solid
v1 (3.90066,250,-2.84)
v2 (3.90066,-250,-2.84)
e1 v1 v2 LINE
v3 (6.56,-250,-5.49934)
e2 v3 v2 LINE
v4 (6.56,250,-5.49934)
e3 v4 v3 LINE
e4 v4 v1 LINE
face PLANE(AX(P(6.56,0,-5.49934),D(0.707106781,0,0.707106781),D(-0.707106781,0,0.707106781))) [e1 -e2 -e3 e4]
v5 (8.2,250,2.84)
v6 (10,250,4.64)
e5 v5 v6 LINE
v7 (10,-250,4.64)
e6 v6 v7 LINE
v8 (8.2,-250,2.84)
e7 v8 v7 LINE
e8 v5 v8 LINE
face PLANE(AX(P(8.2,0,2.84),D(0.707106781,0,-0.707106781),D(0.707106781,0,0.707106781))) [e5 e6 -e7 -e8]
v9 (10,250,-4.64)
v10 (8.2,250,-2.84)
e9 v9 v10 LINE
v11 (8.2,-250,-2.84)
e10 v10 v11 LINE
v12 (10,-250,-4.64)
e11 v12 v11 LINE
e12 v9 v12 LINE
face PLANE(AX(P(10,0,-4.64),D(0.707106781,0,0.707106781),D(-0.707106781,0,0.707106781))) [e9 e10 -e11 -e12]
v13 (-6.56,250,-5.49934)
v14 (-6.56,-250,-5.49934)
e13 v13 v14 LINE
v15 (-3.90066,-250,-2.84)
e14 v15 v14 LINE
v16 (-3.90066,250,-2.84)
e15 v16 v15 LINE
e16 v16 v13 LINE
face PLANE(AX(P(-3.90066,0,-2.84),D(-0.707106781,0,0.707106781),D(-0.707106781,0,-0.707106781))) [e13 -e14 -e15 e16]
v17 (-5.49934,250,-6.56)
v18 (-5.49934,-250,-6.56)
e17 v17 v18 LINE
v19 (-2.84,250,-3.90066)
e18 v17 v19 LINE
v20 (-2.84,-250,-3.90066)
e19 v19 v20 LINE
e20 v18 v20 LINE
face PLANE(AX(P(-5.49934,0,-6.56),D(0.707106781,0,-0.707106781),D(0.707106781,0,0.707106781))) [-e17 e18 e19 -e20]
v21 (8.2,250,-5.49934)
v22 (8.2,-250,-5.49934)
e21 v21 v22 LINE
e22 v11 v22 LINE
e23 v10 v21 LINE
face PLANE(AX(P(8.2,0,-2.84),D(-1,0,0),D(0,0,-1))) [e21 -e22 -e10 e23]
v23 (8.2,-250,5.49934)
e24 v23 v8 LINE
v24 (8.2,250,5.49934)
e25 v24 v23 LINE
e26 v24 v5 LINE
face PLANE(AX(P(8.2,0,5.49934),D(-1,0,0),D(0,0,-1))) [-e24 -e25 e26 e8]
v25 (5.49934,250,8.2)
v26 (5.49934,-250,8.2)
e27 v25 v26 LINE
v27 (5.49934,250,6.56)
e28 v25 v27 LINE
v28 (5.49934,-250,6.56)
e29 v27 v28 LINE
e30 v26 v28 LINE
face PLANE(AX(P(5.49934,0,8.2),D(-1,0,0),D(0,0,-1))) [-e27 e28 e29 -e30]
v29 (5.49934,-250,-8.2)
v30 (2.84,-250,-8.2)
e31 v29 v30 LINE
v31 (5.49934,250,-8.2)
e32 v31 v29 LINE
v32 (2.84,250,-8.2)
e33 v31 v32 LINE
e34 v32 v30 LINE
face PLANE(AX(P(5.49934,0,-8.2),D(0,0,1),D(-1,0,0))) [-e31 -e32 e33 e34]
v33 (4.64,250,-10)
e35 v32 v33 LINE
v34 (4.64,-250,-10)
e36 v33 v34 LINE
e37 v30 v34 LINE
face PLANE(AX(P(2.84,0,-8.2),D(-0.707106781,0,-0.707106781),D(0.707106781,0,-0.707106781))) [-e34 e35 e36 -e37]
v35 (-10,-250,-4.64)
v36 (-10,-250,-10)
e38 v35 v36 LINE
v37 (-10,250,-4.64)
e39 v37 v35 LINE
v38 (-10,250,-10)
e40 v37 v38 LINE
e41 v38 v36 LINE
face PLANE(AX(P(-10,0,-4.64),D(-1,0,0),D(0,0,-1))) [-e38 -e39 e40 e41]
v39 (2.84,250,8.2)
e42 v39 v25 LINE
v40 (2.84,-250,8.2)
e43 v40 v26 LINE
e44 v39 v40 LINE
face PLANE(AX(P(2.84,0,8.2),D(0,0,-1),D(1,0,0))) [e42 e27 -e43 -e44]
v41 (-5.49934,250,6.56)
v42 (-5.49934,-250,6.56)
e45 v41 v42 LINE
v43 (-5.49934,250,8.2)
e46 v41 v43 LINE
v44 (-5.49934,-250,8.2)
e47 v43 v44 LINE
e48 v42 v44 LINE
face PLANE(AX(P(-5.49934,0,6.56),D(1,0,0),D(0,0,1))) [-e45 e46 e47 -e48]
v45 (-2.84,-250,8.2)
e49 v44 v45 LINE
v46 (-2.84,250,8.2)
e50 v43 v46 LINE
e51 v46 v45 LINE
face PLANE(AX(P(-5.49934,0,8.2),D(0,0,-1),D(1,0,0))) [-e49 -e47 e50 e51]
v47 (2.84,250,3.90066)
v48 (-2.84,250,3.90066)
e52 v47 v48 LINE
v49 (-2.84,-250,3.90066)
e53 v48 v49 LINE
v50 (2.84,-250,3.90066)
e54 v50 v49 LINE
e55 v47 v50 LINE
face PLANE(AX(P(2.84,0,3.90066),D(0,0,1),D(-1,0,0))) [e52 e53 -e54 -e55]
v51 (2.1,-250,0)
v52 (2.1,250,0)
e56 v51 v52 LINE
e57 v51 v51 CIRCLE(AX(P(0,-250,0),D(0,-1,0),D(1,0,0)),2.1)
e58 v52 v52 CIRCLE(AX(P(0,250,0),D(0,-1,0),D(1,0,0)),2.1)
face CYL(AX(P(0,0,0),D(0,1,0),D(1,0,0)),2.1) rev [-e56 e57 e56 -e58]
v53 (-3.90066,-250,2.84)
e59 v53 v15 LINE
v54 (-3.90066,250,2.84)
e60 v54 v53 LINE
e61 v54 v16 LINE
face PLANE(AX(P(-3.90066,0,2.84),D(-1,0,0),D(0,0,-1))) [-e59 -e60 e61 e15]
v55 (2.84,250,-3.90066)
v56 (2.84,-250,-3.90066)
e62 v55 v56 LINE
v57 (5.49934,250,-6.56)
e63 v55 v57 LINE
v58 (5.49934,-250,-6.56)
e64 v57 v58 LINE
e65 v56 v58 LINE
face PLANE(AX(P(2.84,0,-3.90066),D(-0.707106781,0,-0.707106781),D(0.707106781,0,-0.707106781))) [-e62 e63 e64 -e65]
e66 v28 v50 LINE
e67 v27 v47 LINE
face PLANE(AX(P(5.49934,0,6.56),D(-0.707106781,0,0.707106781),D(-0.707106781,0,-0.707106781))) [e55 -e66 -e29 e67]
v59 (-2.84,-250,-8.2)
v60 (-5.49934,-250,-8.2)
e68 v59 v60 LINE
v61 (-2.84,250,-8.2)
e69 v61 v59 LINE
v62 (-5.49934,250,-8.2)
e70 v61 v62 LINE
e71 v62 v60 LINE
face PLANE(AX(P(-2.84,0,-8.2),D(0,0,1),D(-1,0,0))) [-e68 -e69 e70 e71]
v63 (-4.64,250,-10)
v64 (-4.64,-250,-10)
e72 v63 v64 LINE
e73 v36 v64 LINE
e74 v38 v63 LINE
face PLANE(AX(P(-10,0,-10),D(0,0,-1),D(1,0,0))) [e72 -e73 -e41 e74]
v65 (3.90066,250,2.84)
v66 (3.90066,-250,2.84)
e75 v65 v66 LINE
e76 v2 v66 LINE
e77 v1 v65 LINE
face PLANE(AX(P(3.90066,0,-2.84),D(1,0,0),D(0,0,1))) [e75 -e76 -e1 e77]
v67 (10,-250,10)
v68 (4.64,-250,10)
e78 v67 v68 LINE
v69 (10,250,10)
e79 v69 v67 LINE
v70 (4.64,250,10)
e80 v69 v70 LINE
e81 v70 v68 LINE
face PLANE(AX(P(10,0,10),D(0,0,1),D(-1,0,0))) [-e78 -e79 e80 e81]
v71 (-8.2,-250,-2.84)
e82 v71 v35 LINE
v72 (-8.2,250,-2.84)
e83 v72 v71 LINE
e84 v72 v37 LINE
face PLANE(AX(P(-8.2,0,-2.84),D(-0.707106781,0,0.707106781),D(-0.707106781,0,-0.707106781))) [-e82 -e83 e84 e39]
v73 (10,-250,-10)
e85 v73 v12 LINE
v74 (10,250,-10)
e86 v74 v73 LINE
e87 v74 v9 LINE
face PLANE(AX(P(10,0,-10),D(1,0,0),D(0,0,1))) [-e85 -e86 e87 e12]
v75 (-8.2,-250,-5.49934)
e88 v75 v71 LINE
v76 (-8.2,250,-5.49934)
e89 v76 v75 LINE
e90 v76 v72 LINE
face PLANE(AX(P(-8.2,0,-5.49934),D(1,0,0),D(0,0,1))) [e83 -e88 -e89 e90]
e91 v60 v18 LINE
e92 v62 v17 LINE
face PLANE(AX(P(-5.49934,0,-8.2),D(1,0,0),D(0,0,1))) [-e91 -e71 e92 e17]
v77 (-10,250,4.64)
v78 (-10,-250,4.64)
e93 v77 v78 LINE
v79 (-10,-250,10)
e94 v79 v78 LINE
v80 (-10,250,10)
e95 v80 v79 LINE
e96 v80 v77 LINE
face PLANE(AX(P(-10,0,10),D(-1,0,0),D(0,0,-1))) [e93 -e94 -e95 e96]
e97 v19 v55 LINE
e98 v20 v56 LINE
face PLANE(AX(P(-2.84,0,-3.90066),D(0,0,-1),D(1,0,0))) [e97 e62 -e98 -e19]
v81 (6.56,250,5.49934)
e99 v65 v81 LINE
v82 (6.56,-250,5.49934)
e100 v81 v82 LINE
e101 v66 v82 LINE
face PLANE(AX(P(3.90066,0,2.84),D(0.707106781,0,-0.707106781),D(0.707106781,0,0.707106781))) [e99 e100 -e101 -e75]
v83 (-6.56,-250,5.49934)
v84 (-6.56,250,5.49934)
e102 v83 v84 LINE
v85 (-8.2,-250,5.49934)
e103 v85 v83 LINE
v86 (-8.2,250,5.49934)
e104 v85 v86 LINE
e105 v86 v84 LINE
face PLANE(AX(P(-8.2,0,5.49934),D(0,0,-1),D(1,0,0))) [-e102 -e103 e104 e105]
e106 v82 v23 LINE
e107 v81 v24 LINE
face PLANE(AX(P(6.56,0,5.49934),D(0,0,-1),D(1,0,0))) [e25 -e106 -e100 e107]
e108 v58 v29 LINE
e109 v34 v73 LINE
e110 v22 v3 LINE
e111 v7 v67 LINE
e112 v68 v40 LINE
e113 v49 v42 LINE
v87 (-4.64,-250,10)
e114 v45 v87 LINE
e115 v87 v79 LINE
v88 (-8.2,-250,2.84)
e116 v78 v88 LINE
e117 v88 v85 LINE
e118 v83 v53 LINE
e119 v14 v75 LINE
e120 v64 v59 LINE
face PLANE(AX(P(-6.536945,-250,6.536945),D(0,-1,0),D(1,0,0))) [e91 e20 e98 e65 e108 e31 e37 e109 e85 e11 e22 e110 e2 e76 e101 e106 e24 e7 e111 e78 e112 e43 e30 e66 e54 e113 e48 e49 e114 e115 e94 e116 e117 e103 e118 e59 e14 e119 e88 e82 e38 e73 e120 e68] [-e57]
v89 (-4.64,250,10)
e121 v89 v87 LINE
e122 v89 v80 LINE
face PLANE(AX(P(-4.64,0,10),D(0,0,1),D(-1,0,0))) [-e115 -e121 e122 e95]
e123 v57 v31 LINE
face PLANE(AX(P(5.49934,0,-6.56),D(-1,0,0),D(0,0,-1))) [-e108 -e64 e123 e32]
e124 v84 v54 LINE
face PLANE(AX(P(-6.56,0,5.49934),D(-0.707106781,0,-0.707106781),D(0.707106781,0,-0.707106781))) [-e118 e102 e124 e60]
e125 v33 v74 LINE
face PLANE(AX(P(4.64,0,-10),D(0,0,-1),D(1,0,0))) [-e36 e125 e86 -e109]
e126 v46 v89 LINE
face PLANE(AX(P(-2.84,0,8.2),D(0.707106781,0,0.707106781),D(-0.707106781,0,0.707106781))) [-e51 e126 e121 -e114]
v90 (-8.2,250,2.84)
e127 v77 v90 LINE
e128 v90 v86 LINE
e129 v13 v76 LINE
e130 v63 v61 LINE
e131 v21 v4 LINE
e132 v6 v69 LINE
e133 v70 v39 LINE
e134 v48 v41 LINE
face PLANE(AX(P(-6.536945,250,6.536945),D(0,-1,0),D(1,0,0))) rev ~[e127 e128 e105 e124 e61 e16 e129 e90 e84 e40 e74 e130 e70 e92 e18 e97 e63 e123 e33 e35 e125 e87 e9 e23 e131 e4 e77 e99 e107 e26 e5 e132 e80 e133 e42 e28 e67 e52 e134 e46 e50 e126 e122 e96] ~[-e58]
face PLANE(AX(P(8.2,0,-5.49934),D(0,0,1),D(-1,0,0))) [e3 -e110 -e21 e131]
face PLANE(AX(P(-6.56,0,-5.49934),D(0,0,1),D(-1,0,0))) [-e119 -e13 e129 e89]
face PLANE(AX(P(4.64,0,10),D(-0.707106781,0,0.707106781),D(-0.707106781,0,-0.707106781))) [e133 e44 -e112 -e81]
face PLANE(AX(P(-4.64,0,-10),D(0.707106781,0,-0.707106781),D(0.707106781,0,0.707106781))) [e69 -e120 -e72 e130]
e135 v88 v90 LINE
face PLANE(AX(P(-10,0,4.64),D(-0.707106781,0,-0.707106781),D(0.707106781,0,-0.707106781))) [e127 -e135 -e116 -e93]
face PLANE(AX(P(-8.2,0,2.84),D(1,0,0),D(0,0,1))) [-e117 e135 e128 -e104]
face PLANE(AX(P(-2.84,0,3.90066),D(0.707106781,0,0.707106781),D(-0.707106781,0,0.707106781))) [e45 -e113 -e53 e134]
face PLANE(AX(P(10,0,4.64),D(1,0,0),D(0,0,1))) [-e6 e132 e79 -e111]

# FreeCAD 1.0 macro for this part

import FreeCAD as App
import Part
import Sketcher
Q = App.Units.Quantity


def add_polygon(sketch, points):
    """Adds a closed chain of lines whose ends are joined by coincident constraints."""
    first, n = sketch.GeometryCount, len(points)
    for a, b in zip(points, points[1:] + points[:1]):
        sketch.addGeometry(Part.LineSegment(App.Vector(*a, 0), App.Vector(*b, 0)), False)
    for i in range(n):
        sketch.addConstraint(Sketcher.Constraint("Coincident", first + i, 2, first + (i + 1) % n, 1))

doc = App.newDocument("Part")
params = doc.addObject("Spreadsheet::Sheet", "Params")
for row, (alias, value) in enumerate([
    ("sketch1_diameter", "4.2 mm"),
    ("sketch1_width", "1.64 mm"),
    ("sketch1_width2", "5.36 mm"),
    ("sketch1_width3", "5.68 mm"),
    ("pad1_length", "500 mm"),
], start=1):
    params.set(f"A{row}", alias)
    params.set(f"B{row}", "=" + value)
    params.setAlias(f"B{row}", alias)

body = doc.addObject("PartDesign::Body", "Body")

# Sketch on XZ plane
sketch1 = body.newObject("Sketcher::SketchObject", "Sketch")
sketch1.AttachmentSupport = (doc.getObject("XZ_Plane"), [""])
sketch1.MapMode = "FlatFace"
add_polygon(sketch1, [(-6.56, 5.49934), (-3.90066, 2.84), (-3.90066, -2.84), (-6.56, -5.49934), (-8.2, -5.49934), (-8.2, -2.84), (-10, -4.64), (-10, -10), (-4.64, -10), (-2.84, -8.2), (-5.49934, -8.2), (-5.49934, -6.56), (-2.84, -3.90066), (2.84, -3.90066), (5.49934, -6.56), (5.49934, -8.2), (2.84, -8.2), (4.64, -10), (10, -10), (10, -4.64), (8.2, -2.84), (8.2, -5.49934), (6.56, -5.49934), (3.90066, -2.84), (3.90066, 2.84), (6.56, 5.49934), (8.2, 5.49934), (8.2, 2.84), (10, 4.64), (10, 10), (4.64, 10), (2.84, 8.2), (5.49934, 8.2), (5.49934, 6.56), (2.84, 3.90066), (-2.84, 3.90066), (-5.49934, 6.56), (-5.49934, 8.2), (-2.84, 8.2), (-4.64, 10), (-10, 10), (-10, 4.64), (-8.2, 2.84), (-8.2, 5.49934)])  # lines 0-43
sketch1.addGeometry(Part.Circle(App.Vector(0, 0, 0), App.Vector(0, 0, 1), 2.1), False)  # 44
sketch1.addConstraint(Sketcher.Constraint("Vertical", 1))
sketch1.addConstraint(Sketcher.Constraint("Horizontal", 3))
sketch1.addConstraint(Sketcher.Constraint("Vertical", 4))
sketch1.addConstraint(Sketcher.Constraint("Vertical", 6))
sketch1.addConstraint(Sketcher.Constraint("Horizontal", 7))
sketch1.addConstraint(Sketcher.Constraint("Horizontal", 9))
sketch1.addConstraint(Sketcher.Constraint("Vertical", 10))
sketch1.addConstraint(Sketcher.Constraint("Horizontal", 12))
sketch1.addConstraint(Sketcher.Constraint("Vertical", 14))
sketch1.addConstraint(Sketcher.Constraint("Horizontal", 15))
sketch1.addConstraint(Sketcher.Constraint("Horizontal", 17))
sketch1.addConstraint(Sketcher.Constraint("Vertical", 18))
sketch1.addConstraint(Sketcher.Constraint("Vertical", 20))
sketch1.addConstraint(Sketcher.Constraint("Horizontal", 21))
sketch1.addConstraint(Sketcher.Constraint("Vertical", 23))
sketch1.addConstraint(Sketcher.Constraint("Horizontal", 25))
sketch1.addConstraint(Sketcher.Constraint("Vertical", 26))
sketch1.addConstraint(Sketcher.Constraint("Vertical", 28))
sketch1.addConstraint(Sketcher.Constraint("Horizontal", 29))
sketch1.addConstraint(Sketcher.Constraint("Horizontal", 31))
sketch1.addConstraint(Sketcher.Constraint("Vertical", 32))
sketch1.addConstraint(Sketcher.Constraint("Horizontal", 34))
sketch1.addConstraint(Sketcher.Constraint("Vertical", 36))
sketch1.addConstraint(Sketcher.Constraint("Horizontal", 37))
sketch1.addConstraint(Sketcher.Constraint("Horizontal", 39))
sketch1.addConstraint(Sketcher.Constraint("Vertical", 40))
sketch1.addConstraint(Sketcher.Constraint("Vertical", 42))
sketch1.addConstraint(Sketcher.Constraint("Horizontal", 43))
sketch1.addConstraint(Sketcher.Constraint("Coincident", 44, 3, -1, 1))
sketch1.addConstraint(Sketcher.Constraint("Symmetric", 0, 2, 22, 2, -1, 1))
sketch1.addConstraint(Sketcher.Constraint("Symmetric", 2, 2, 24, 2, -1, 1))
sketch1.addConstraint(Sketcher.Constraint("Symmetric", 4, 2, 26, 2, -1, 1))
sketch1.addConstraint(Sketcher.Constraint("Symmetric", 5, 2, 27, 2, -1, 1))
sketch1.addConstraint(Sketcher.Constraint("Symmetric", 7, 2, 29, 2, -1, 1))
sketch1.addConstraint(Sketcher.Constraint("Symmetric", 8, 2, 30, 2, -1, 1))
sketch1.addConstraint(Sketcher.Constraint("Symmetric", 10, 2, 32, 2, -1, 1))
sketch1.addConstraint(Sketcher.Constraint("Symmetric", 11, 2, 33, 2, -1, 1))
sketch1.addConstraint(Sketcher.Constraint("Symmetric", 13, 2, 35, 2, -1, 1))
sketch1.addConstraint(Sketcher.Constraint("Symmetric", 15, 2, 37, 2, -1, 1))
sketch1.addConstraint(Sketcher.Constraint("Symmetric", 16, 2, 38, 2, -1, 1))
sketch1.addConstraint(Sketcher.Constraint("Symmetric", 18, 2, 40, 2, -1, 1))
sketch1.addConstraint(Sketcher.Constraint("Symmetric", 19, 2, 41, 2, -1, 1))
sketch1.addConstraint(Sketcher.Constraint("Symmetric", 21, 2, 43, 2, -1, 1))
sketch1.addConstraint(Sketcher.Constraint("Symmetric", 10, 2, 13, 2, -2))
sketch1.addConstraint(Sketcher.Constraint("Symmetric", 8, 2, 15, 2, -2))
sketch1.addConstraint(Sketcher.Constraint("Symmetric", 7, 2, 16, 2, -2))
sketch1.addConstraint(Sketcher.Constraint("Symmetric", 5, 2, 18, 2, -2))
sketch1.addConstraint(Sketcher.Constraint("Symmetric", 4, 2, 19, 2, -2))
sketch1.addConstraint(Sketcher.Constraint("Symmetric", 2, 2, 21, 2, -2))
sketch1.addConstraint(Sketcher.Constraint("Perpendicular", 0, 2))
sketch1.addConstraint(Sketcher.Constraint("Parallel", 2, 5))
sketch1.addConstraint(Sketcher.Constraint("Parallel", 5, 8))
sketch1.addConstraint(Sketcher.Constraint("Parallel", 8, 11))
sketch1.addConstraint(Sketcher.Constraint("Perpendicular", 11, 13))
sketch1.addConstraint(Sketcher.Constraint("Parallel", 13, 16))
sketch1.addConstraint(Sketcher.Constraint("Perpendicular", 22, 24))
sketch1.addConstraint(Sketcher.Constraint("Perpendicular", 33, 35))
sketch1.addConstraint(Sketcher.Constraint("Horizontal", 1, 2, 4, 2))
sketch1.addConstraint(Sketcher.Constraint("Vertical", 8, 2, 11, 2))
sketch1.addConstraint(Sketcher.Constraint("Equal", 34, 1))
sketch1.addConstraint(Sketcher.Constraint("Equal", 37, 4))
sketch1.addConstraint(Sketcher.Constraint("Equal", 39, 6))
sketch1.addConstraint(Sketcher.Constraint("Equal", 43, 10))
sketch1.addConstraint(Sketcher.Constraint("Equal", 5, 8))
sketch1.addConstraint(Sketcher.Constraint("Diameter", 44, Q("4.2 mm")))
sketch1.addConstraint(Sketcher.Constraint("DistanceX", 5, 2, -1, 1, Q("10 mm")))
sketch1.addConstraint(Sketcher.Constraint("DistanceX", 3, 2, 3, 1, Q("1.64 mm")))
sketch1.addConstraint(Sketcher.Constraint("DistanceX", 7, 1, 7, 2, Q("5.36 mm")))
sketch1.addConstraint(Sketcher.Constraint("DistanceX", 12, 1, 12, 2, Q("5.68 mm")))
sketch1.addConstraint(Sketcher.Constraint("DistanceX", 9, 2, 9, 1, Q("2.65934 mm")))
sketch1.setExpression("Constraints[108]", "Params.sketch1_diameter")
sketch1.setExpression("Constraints[110]", "Params.sketch1_width")
sketch1.setExpression("Constraints[111]", "Params.sketch1_width2")
sketch1.setExpression("Constraints[112]", "Params.sketch1_width3")
pad1 = body.newObject("PartDesign::Pad", "Pad")
pad1.Profile = sketch1
pad1.setExpression("Length", "Params.pad1_length")
pad1.Midplane = True

doc.recompute()
